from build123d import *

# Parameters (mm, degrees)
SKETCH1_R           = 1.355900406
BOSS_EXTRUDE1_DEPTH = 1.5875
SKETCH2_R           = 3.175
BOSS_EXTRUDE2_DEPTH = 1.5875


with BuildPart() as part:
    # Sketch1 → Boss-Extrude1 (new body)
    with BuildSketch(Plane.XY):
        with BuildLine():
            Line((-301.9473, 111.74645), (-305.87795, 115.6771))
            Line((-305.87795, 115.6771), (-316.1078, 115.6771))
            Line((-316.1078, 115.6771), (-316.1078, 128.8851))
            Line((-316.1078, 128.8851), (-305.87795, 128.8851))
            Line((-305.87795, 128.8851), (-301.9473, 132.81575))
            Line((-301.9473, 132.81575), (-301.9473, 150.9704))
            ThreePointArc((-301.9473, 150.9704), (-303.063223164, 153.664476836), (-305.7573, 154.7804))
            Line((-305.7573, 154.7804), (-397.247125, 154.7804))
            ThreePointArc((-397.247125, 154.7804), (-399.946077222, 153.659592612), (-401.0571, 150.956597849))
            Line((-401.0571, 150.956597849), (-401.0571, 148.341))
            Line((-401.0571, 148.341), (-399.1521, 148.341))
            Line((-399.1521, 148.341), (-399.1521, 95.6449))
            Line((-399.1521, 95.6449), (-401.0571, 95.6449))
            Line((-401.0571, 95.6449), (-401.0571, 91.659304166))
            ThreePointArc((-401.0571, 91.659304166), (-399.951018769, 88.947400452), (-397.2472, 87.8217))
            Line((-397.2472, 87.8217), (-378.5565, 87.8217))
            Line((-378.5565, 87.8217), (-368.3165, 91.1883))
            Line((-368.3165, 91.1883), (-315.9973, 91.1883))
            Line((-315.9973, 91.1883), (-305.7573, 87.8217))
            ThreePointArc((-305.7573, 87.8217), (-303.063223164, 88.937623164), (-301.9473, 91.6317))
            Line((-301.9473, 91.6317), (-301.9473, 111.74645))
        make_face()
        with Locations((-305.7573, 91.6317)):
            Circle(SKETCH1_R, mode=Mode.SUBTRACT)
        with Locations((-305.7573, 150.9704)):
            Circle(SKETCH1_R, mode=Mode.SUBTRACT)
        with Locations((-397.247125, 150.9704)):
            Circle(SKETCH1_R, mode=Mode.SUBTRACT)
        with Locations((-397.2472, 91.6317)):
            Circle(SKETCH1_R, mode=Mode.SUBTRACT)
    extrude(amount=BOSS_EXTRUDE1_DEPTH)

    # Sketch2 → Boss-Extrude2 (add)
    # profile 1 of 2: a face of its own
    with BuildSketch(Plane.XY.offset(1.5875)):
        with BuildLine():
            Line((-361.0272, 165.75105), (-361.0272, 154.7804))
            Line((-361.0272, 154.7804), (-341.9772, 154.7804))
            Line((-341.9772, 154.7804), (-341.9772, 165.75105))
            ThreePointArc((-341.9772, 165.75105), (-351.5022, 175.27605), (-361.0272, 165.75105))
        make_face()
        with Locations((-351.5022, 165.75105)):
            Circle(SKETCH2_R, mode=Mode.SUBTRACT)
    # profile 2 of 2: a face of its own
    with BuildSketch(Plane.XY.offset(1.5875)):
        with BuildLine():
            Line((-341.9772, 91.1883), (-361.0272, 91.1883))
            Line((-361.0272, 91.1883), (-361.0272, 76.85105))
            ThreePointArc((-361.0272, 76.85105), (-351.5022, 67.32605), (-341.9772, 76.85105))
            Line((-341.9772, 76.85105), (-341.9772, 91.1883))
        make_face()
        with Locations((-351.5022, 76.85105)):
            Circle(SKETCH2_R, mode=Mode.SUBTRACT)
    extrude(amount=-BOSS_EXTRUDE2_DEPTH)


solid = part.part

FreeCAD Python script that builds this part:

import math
import FreeCAD as App
import Part
import Sketcher

V = App.Vector
Q = App.Units.Quantity

doc = App.newDocument("Part")
body = doc.addObject("PartDesign::Body", "Body")

sketch1 = body.newObject("Sketcher::SketchObject", "Sketch")
sketch1.AttachmentSupport = (doc.getObject("XY_Plane"), [""])
sketch1.MapMode = "FlatFace"
sketch1.addGeometry([
    Part.LineSegment(V(-301.9473, 111.74645, 0), V(-305.87795, 115.6771, 0)),
    Part.LineSegment(V(-305.87795, 115.6771, 0), V(-316.1078, 115.6771, 0)),
    Part.LineSegment(V(-316.1078, 115.6771, 0), V(-316.1078, 128.8851, 0)),
    Part.LineSegment(V(-316.1078, 128.8851, 0), V(-305.87795, 128.8851, 0)),
    Part.LineSegment(V(-305.87795, 128.8851, 0), V(-301.9473, 132.81575, 0)),
    Part.LineSegment(V(-301.9473, 132.81575, 0), V(-301.9473, 150.9704, 0)),
    Part.ArcOfCircle(Part.Circle(V(-305.7573, 150.9704, 0), V(0, 0, 1), 3.81), math.radians(0), math.radians(90)),
    Part.LineSegment(V(-305.7573, 154.7804, 0), V(-397.247125, 154.7804, 0)),
    Part.ArcOfCircle(Part.Circle(V(-397.247125, 150.9704, 0), V(0, 0, 1), 3.81), math.radians(90), math.radians(180.207561)),
    Part.LineSegment(V(-401.0571, 150.956598, 0), V(-401.0571, 148.341, 0)),
    Part.LineSegment(V(-401.0571, 148.341, 0), V(-399.1521, 148.341, 0)),
    Part.LineSegment(V(-399.1521, 148.341, 0), V(-399.1521, 95.6449, 0)),
    Part.LineSegment(V(-399.1521, 95.6449, 0), V(-401.0571, 95.6449, 0)),
    Part.LineSegment(V(-401.0571, 95.6449, 0), V(-401.0571, 91.659304, 0)),
    Part.ArcOfCircle(Part.Circle(V(-397.2472, 91.6317, 0), V(0, 0, 1), 3.81), math.radians(179.584878), math.radians(270)),
    Part.LineSegment(V(-397.2472, 87.8217, 0), V(-378.5565, 87.8217, 0)),
    Part.LineSegment(V(-378.5565, 87.8217, 0), V(-368.3165, 91.1883, 0)),
    Part.LineSegment(V(-368.3165, 91.1883, 0), V(-315.9973, 91.1883, 0)),
    Part.LineSegment(V(-315.9973, 91.1883, 0), V(-305.7573, 87.8217, 0)),
    Part.ArcOfCircle(Part.Circle(V(-305.7573, 91.6317, 0), V(0, 0, 1), 3.81), math.radians(-90), math.radians(0)),
    Part.LineSegment(V(-301.9473, 91.6317, 0), V(-301.9473, 111.74645, 0)),
    Part.Circle(V(-397.2472, 91.6317, 0), V(0, 0, 1), 1.3559),
    Part.Circle(V(-305.7573, 91.6317, 0), V(0, 0, 1), 1.3559),
    Part.Circle(V(-397.247125, 150.9704, 0), V(0, 0, 1), 1.3559),
    Part.Circle(V(-305.7573, 150.9704, 0), V(0, 0, 1), 1.3559),
], False)
sketch1.addConstraint([
    Sketcher.Constraint("Coincident", 0, 2, 1, 1),
    Sketcher.Constraint("Coincident", 1, 2, 2, 1),
    Sketcher.Constraint("Coincident", 2, 2, 3, 1),
    Sketcher.Constraint("Coincident", 3, 2, 4, 1),
    Sketcher.Constraint("Coincident", 4, 2, 5, 1),
    Sketcher.Constraint("Tangent", 5, 2, 6, 1),
    Sketcher.Constraint("Tangent", 6, 2, 7, 1),
    Sketcher.Constraint("Tangent", 7, 2, 8, 1),
    Sketcher.Constraint("Coincident", 8, 2, 9, 1),
    Sketcher.Constraint("Coincident", 9, 2, 10, 1),
    Sketcher.Constraint("Coincident", 10, 2, 11, 1),
    Sketcher.Constraint("Coincident", 11, 2, 12, 1),
    Sketcher.Constraint("Coincident", 12, 2, 13, 1),
    Sketcher.Constraint("Coincident", 13, 2, 14, 1),
    Sketcher.Constraint("Tangent", 14, 2, 15, 1),
    Sketcher.Constraint("Coincident", 15, 2, 16, 1),
    Sketcher.Constraint("Coincident", 16, 2, 17, 1),
    Sketcher.Constraint("Coincident", 17, 2, 18, 1),
    Sketcher.Constraint("Coincident", 18, 2, 19, 1),
    Sketcher.Constraint("Tangent", 19, 2, 20, 1),
    Sketcher.Constraint("Coincident", 20, 2, 0, 1),
    Sketcher.Constraint("Horizontal", 1),
    Sketcher.Constraint("Vertical", 2),
    Sketcher.Constraint("Horizontal", 3),
    Sketcher.Constraint("Vertical", 5),
    Sketcher.Constraint("Horizontal", 7),
    Sketcher.Constraint("Vertical", 9),
    Sketcher.Constraint("Horizontal", 10),
    Sketcher.Constraint("Vertical", 11),
    Sketcher.Constraint("Horizontal", 12),
    Sketcher.Constraint("Vertical", 13),
    Sketcher.Constraint("Horizontal", 15),
    Sketcher.Constraint("Horizontal", 17),
    Sketcher.Constraint("Vertical", 20),
    Sketcher.Constraint("Coincident", 21, 3, 14, 3),
    Sketcher.Constraint("Coincident", 22, 3, 19, 3),
    Sketcher.Constraint("Coincident", 23, 3, 8, 3),
    Sketcher.Constraint("Coincident", 24, 3, 6, 3),
    Sketcher.Constraint("Equal", 6, 8),
    Sketcher.Constraint("Equal", 8, 14),
    Sketcher.Constraint("Equal", 14, 19),
    Sketcher.Constraint("Equal", 21, 22),
    Sketcher.Constraint("Equal", 22, 23),
    Sketcher.Constraint("Equal", 23, 24),
    Sketcher.Constraint("Perpendicular", 0, 4),
    Sketcher.Constraint("Horizontal", 14, 3, 19, 3),
    Sketcher.Constraint("Vertical", 6, 3, 19, 3),
    Sketcher.Constraint("Vertical", 0, 2, 3, 2),
    Sketcher.Constraint("Vertical", 9, 2, 12, 2),
    Sketcher.Constraint("Vertical", 6, 2, 18, 2),
    Sketcher.Constraint("Equal", 0, 4),
    Sketcher.Constraint("Equal", 16, 18),
    Sketcher.Constraint("Radius", 6, Q("0.15 in")),
    Sketcher.Constraint("DistanceY", 2, 1, 2, 2, Q("0.52 in")),
    Sketcher.Constraint("Diameter", 21, Q("2.711801 mm")),
    Sketcher.Constraint("DistanceX", 10, 1, 10, 2, Q("0.075 in")),
    Sketcher.Constraint("DistanceY", 14, 3, 11, 2, Q("0.158 in")),
    Sketcher.Constraint("DistanceX", 11, 2, 16, 2, Q("1.214 in")),
    Sketcher.Constraint("DistanceX", 15, 1, 15, 2, Q("18.6907 mm")),
    Sketcher.Constraint("DistanceX", 17, 1, 17, 2, Q("52.3192 mm")),
    Sketcher.Constraint("DistanceY", 11, 2, 11, 1, Q("52.6961 mm")),
    Sketcher.Constraint("DistanceY", 0, 2, 6, 3, Q("1.3895 in")),
    Sketcher.Constraint("DistanceX", 1, 2, 19, 3, Q("0.4075 in")),
    Sketcher.Constraint("DistanceX", 1, 2, 1, 1, Q("10.22985 mm")),
    Sketcher.Constraint("DistanceY", 20, 1, 20, 2, Q("20.11475 mm")),
    Sketcher.Constraint("DistanceX", 6, 3, -1, 1, Q("305.7573 mm")),
    Sketcher.Constraint("DistanceY", -1, 1, 6, 3, Q("150.9704 mm")),
    Sketcher.Constraint("DistanceX", 14, 3, -1, 1, Q("397.2472 mm")),
    Sketcher.Constraint("DistanceY", -1, 1, 16, 2, Q("91.1883 mm")),
    Sketcher.Constraint("DistanceX", 7, 2, 7, 1, Q("91.489825 mm")),
])
pad1 = body.newObject("PartDesign::Pad", "Pad")
pad1.Profile = sketch1
pad1.Length = Q("0.0625 in")

sketch2 = body.newObject("Sketcher::SketchObject", "Sketch001")
sketch2.AttachmentSupport = (doc.getObject("XY_Plane"), [""])
sketch2.MapMode = "FlatFace"
sketch2.AttachmentOffset = App.Placement(V(0, 0, 0.0625 * 25.4), App.Rotation())
sketch2.addGeometry([
    Part.LineSegment(V(-361, 165.8, 0), V(-361, 154.8, 0)),
    Part.LineSegment(V(-361, 154.8, 0), V(-342, 154.8, 0)),
    Part.LineSegment(V(-342, 154.8, 0), V(-342, 165.8, 0)),
    Part.ArcOfCircle(Part.Circle(V(-351.5, 165.8, 0), V(0, 0, 1), 9.5), math.radians(0), math.radians(180)),
    Part.Circle(V(-351.5, 165.8, 0), V(0, 0, 1), 3.2),
    Part.LineSegment(V(-342, 91.2, 0), V(-361, 91.2, 0)),
    Part.LineSegment(V(-361, 91.2, 0), V(-361, 76.9, 0)),
    Part.ArcOfCircle(Part.Circle(V(-351.5, 76.9, 0), V(0, 0, 1), 9.5), math.radians(180), math.radians(360)),
    Part.LineSegment(V(-342, 76.9, 0), V(-342, 91.2, 0)),
    Part.Circle(V(-351.5, 76.9, 0), V(0, 0, 1), 3.2),
], False)
sketch2.addConstraint([
    Sketcher.Constraint("Coincident", 0, 2, 1, 1),
    Sketcher.Constraint("Coincident", 1, 2, 2, 1),
    Sketcher.Constraint("Tangent", 2, 2, 3, 1),
    Sketcher.Constraint("Tangent", 3, 2, 0, 1),
    Sketcher.Constraint("Coincident", 5, 2, 6, 1),
    Sketcher.Constraint("Tangent", 6, 2, 7, 1),
    Sketcher.Constraint("Tangent", 7, 2, 8, 1),
    Sketcher.Constraint("Coincident", 8, 2, 5, 1),
    Sketcher.Constraint("Vertical", 0),
    Sketcher.Constraint("Horizontal", 1),
    Sketcher.Constraint("Vertical", 2),
    Sketcher.Constraint("Horizontal", 5),
    Sketcher.Constraint("Vertical", 6),
    Sketcher.Constraint("Vertical", 8),
    Sketcher.Constraint("Coincident", 4, 3, 3, 3),
    Sketcher.Constraint("Coincident", 9, 3, 7, 3),
    Sketcher.Constraint("Equal", 3, 7),
    Sketcher.Constraint("Equal", 4, 9),
    Sketcher.Constraint("Vertical", 4, 3, 7, 3),
    Sketcher.Constraint("Diameter", 4, Q("0.25 in")),
    Sketcher.Constraint("Radius", 3, Q("0.375 in")),
    Sketcher.Constraint("DistanceY", 7, 3, 3, 3, Q("3.5 in")),
    Sketcher.Constraint("DistanceY", 0, 2, 0, 1, Q("10.97065 mm")),
    Sketcher.Constraint("DistanceY", 6, 2, 6, 1, Q("14.33725 mm")),
    Sketcher.Constraint("DistanceX", 3, 3, -1, 1, Q("351.5022 mm")),
    Sketcher.Constraint("DistanceY", -1, 1, 0, 2, Q("154.7804 mm")),
])
pad2 = body.newObject("PartDesign::Pad", "Pad001")
pad2.Profile = sketch2
pad2.Length = Q("0.0625 in")
pad2.Reversed = True

doc.recompute()
